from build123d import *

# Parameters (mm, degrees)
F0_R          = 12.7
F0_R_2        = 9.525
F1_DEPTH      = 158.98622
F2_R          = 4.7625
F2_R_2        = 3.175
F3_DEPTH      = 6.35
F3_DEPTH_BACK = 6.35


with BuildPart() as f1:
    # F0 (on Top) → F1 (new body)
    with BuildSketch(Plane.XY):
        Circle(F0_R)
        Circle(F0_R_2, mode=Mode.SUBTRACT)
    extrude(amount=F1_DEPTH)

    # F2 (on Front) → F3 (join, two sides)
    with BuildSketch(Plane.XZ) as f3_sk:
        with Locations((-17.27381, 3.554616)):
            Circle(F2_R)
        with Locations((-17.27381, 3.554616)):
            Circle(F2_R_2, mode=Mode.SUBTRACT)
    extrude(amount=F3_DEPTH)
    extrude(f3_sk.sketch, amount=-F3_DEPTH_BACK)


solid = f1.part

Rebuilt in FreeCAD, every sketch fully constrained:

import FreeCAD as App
import Part
import Sketcher
Q = App.Units.Quantity

doc = App.newDocument("Part")
params = doc.addObject("Spreadsheet::Sheet", "Params")
for row, (alias, value) in enumerate([
    ("sketch1_diameter", "1 in"),
    ("sketch1_diameter2", "0.75 in"),
    ("pad1_length", "6.2593 in"),
    ("sketch2_diameter", "0.25 in"),
    ("sketch2_diameter2", "0.375 in"),
    ("pad2_length", "0.25 in"),
    ("pad2_length2", "0.25 in"),
], start=1):
    params.set(f"A{row}", alias)
    params.set(f"B{row}", "=" + value)
    params.setAlias(f"B{row}", alias)

body = doc.addObject("PartDesign::Body", "Body")

sketch1 = body.newObject("Sketcher::SketchObject", "Sketch")
sketch1.AttachmentSupport = (doc.getObject("XY_Plane"), [""])
sketch1.MapMode = "FlatFace"
sketch1.addGeometry([
    Part.Circle(App.Vector(0, 0, 0), App.Vector(0, 0, 1), 12.7),
    Part.Circle(App.Vector(0, 0, 0), App.Vector(0, 0, 1), 9.525),
], False)
sketch1.addConstraint([
    Sketcher.Constraint("Coincident", 0, 3, -1, 1),
    Sketcher.Constraint("Coincident", 1, 3, -1, 1),
    Sketcher.Constraint("Diameter", 0, Q("1 in")),
    Sketcher.Constraint("Diameter", 1, Q("0.75 in")),
])
sketch1.setExpression("Constraints[2]", "Params.sketch1_diameter")
sketch1.setExpression("Constraints[3]", "Params.sketch1_diameter2")
pad1 = body.newObject("PartDesign::Pad", "Pad")
pad1.Profile = sketch1
pad1.setExpression("Length", "Params.pad1_length")

sketch2 = body.newObject("Sketcher::SketchObject", "Sketch001")
sketch2.AttachmentSupport = (doc.getObject("XZ_Plane"), [""])
sketch2.MapMode = "FlatFace"
sketch2.addGeometry([
    Part.Circle(App.Vector(-17.27381, 3.554616, 0), App.Vector(0, 0, 1), 4.7625),
    Part.Circle(App.Vector(-17.27381, 3.554616, 0), App.Vector(0, 0, 1), 3.175),
], False)
sketch2.addConstraint([
    Sketcher.Constraint("Coincident", 1, 3, 0, 3),
    Sketcher.Constraint("Diameter", 1, Q("0.25 in")),
    Sketcher.Constraint("Diameter", 0, Q("0.375 in")),
    Sketcher.Constraint("DistanceX", 0, 3, -1, 1, Q("17.27381 mm")),
    Sketcher.Constraint("DistanceY", -1, 1, 0, 3, Q("3.554616 mm")),
])
sketch2.setExpression("Constraints[1]", "Params.sketch2_diameter")
sketch2.setExpression("Constraints[2]", "Params.sketch2_diameter2")
pad2 = body.newObject("PartDesign::Pad", "Pad001")
pad2.Profile = sketch2
pad2.Type = "TwoLengths"
pad2.setExpression("Length", "Params.pad2_length")
pad2.setExpression("Length2", "Params.pad2_length2")

doc.recompute()
